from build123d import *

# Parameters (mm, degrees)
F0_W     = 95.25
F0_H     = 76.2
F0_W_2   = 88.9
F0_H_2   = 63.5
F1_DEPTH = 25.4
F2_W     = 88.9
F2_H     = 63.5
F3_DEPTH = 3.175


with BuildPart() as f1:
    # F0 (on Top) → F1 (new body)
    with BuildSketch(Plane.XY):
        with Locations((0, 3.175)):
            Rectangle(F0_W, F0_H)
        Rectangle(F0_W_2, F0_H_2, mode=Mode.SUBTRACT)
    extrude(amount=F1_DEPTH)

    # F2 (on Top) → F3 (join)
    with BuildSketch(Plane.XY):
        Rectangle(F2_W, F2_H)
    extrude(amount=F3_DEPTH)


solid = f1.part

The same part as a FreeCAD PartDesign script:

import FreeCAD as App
import Part
import Sketcher
from FreeCAD import Vector
Q = App.Units.Quantity

doc = App.newDocument("Part")
body = doc.addObject("PartDesign::Body", "Body")

# Sketch on XY plane
sketch1 = doc.addObject("Sketcher::SketchObject", "Sketch")
body.addObject(sketch1)
sketch1.AttachmentSupport = (doc.XY_Plane, [""])
sketch1.MapMode = "FlatFace"
sketch1.addGeometry(Part.LineSegment(Vector(-48, 41, 0), Vector(-48, -35, 0)), False)
sketch1.addGeometry(Part.LineSegment(Vector(-48, -35, 0), Vector(48, -35, 0)), False)
sketch1.addGeometry(Part.LineSegment(Vector(48, -35, 0), Vector(48, 41, 0)), False)
sketch1.addGeometry(Part.LineSegment(Vector(48, 41, 0), Vector(-48, 41, 0)), False)
sketch1.addGeometry(Part.LineSegment(Vector(44, -32, 0), Vector(-44, -32, 0)), False)
sketch1.addGeometry(Part.LineSegment(Vector(-44, -32, 0), Vector(-44, 32, 0)), False)
sketch1.addGeometry(Part.LineSegment(Vector(-44, 32, 0), Vector(44, 32, 0)), False)
sketch1.addGeometry(Part.LineSegment(Vector(44, 32, 0), Vector(44, -32, 0)), False)
sketch1.addConstraint(Sketcher.Constraint("Coincident", 0, 2, 1, 1))
sketch1.addConstraint(Sketcher.Constraint("Coincident", 1, 2, 2, 1))
sketch1.addConstraint(Sketcher.Constraint("Coincident", 2, 2, 3, 1))
sketch1.addConstraint(Sketcher.Constraint("Coincident", 3, 2, 0, 1))
sketch1.addConstraint(Sketcher.Constraint("Coincident", 4, 2, 5, 1))
sketch1.addConstraint(Sketcher.Constraint("Coincident", 5, 2, 6, 1))
sketch1.addConstraint(Sketcher.Constraint("Coincident", 6, 2, 7, 1))
sketch1.addConstraint(Sketcher.Constraint("Coincident", 7, 2, 4, 1))
sketch1.addConstraint(Sketcher.Constraint("Vertical", 0))
sketch1.addConstraint(Sketcher.Constraint("Horizontal", 1))
sketch1.addConstraint(Sketcher.Constraint("Vertical", 2))
sketch1.addConstraint(Sketcher.Constraint("Horizontal", 3))
sketch1.addConstraint(Sketcher.Constraint("Horizontal", 4))
sketch1.addConstraint(Sketcher.Constraint("Vertical", 5))
sketch1.addConstraint(Sketcher.Constraint("Horizontal", 6))
sketch1.addConstraint(Sketcher.Constraint("Vertical", 7))
sketch1.addConstraint(Sketcher.Constraint("Symmetric", 4, 2, 6, 2, -1, 1))
sketch1.addConstraint(Sketcher.Constraint("DistanceY", 0, 2, 0, 1, Q("3 in")))
sketch1.addConstraint(Sketcher.Constraint("DistanceX", 4, 2, 4, 1, Q("3.5 in")))
sketch1.addConstraint(Sketcher.Constraint("DistanceY", 5, 1, 5, 2, Q("2.5 in")))
sketch1.addConstraint(Sketcher.Constraint("DistanceX", 1, 1, 1, 2, Q("3.75 in")))
sketch1.addConstraint(Sketcher.Constraint("DistanceX", 0, 2, -1, 1, Q("1.875 in")))
sketch1.addConstraint(Sketcher.Constraint("DistanceY", 0, 2, -1, 1, Q("1.375 in")))
pad1 = doc.addObject("PartDesign::Pad", "Pad")
body.addObject(pad1)
pad1.Profile = sketch1
pad1.Length = Q("1 in")

# Sketch on XY plane
sketch2 = doc.addObject("Sketcher::SketchObject", "Sketch001")
body.addObject(sketch2)
sketch2.AttachmentSupport = (doc.XY_Plane, [""])
sketch2.MapMode = "FlatFace"
sketch2.addGeometry(Part.LineSegment(Vector(-44, 32, 0), Vector(-44, -32, 0)), False)
sketch2.addGeometry(Part.LineSegment(Vector(-44, -32, 0), Vector(44, -32, 0)), False)
sketch2.addGeometry(Part.LineSegment(Vector(44, -32, 0), Vector(44, 32, 0)), False)
sketch2.addGeometry(Part.LineSegment(Vector(44, 32, 0), Vector(-44, 32, 0)), False)
sketch2.addConstraint(Sketcher.Constraint("Coincident", 0, 2, 1, 1))
sketch2.addConstraint(Sketcher.Constraint("Coincident", 1, 2, 2, 1))
sketch2.addConstraint(Sketcher.Constraint("Coincident", 2, 2, 3, 1))
sketch2.addConstraint(Sketcher.Constraint("Coincident", 3, 2, 0, 1))
sketch2.addConstraint(Sketcher.Constraint("Vertical", 0))
sketch2.addConstraint(Sketcher.Constraint("Horizontal", 1))
sketch2.addConstraint(Sketcher.Constraint("Vertical", 2))
sketch2.addConstraint(Sketcher.Constraint("Horizontal", 3))
sketch2.addConstraint(Sketcher.Constraint("Symmetric", 0, 2, 2, 2, -1, 1))
sketch2.addConstraint(Sketcher.Constraint("DistanceX", 1, 1, 1, 2, Q("3.5 in")))
sketch2.addConstraint(Sketcher.Constraint("DistanceY", 0, 2, 0, 1, Q("2.5 in")))
pad2 = doc.addObject("PartDesign::Pad", "Pad001")
body.addObject(pad2)
pad2.Profile = sketch2
pad2.Length = Q("0.125 in")

doc.recompute()
